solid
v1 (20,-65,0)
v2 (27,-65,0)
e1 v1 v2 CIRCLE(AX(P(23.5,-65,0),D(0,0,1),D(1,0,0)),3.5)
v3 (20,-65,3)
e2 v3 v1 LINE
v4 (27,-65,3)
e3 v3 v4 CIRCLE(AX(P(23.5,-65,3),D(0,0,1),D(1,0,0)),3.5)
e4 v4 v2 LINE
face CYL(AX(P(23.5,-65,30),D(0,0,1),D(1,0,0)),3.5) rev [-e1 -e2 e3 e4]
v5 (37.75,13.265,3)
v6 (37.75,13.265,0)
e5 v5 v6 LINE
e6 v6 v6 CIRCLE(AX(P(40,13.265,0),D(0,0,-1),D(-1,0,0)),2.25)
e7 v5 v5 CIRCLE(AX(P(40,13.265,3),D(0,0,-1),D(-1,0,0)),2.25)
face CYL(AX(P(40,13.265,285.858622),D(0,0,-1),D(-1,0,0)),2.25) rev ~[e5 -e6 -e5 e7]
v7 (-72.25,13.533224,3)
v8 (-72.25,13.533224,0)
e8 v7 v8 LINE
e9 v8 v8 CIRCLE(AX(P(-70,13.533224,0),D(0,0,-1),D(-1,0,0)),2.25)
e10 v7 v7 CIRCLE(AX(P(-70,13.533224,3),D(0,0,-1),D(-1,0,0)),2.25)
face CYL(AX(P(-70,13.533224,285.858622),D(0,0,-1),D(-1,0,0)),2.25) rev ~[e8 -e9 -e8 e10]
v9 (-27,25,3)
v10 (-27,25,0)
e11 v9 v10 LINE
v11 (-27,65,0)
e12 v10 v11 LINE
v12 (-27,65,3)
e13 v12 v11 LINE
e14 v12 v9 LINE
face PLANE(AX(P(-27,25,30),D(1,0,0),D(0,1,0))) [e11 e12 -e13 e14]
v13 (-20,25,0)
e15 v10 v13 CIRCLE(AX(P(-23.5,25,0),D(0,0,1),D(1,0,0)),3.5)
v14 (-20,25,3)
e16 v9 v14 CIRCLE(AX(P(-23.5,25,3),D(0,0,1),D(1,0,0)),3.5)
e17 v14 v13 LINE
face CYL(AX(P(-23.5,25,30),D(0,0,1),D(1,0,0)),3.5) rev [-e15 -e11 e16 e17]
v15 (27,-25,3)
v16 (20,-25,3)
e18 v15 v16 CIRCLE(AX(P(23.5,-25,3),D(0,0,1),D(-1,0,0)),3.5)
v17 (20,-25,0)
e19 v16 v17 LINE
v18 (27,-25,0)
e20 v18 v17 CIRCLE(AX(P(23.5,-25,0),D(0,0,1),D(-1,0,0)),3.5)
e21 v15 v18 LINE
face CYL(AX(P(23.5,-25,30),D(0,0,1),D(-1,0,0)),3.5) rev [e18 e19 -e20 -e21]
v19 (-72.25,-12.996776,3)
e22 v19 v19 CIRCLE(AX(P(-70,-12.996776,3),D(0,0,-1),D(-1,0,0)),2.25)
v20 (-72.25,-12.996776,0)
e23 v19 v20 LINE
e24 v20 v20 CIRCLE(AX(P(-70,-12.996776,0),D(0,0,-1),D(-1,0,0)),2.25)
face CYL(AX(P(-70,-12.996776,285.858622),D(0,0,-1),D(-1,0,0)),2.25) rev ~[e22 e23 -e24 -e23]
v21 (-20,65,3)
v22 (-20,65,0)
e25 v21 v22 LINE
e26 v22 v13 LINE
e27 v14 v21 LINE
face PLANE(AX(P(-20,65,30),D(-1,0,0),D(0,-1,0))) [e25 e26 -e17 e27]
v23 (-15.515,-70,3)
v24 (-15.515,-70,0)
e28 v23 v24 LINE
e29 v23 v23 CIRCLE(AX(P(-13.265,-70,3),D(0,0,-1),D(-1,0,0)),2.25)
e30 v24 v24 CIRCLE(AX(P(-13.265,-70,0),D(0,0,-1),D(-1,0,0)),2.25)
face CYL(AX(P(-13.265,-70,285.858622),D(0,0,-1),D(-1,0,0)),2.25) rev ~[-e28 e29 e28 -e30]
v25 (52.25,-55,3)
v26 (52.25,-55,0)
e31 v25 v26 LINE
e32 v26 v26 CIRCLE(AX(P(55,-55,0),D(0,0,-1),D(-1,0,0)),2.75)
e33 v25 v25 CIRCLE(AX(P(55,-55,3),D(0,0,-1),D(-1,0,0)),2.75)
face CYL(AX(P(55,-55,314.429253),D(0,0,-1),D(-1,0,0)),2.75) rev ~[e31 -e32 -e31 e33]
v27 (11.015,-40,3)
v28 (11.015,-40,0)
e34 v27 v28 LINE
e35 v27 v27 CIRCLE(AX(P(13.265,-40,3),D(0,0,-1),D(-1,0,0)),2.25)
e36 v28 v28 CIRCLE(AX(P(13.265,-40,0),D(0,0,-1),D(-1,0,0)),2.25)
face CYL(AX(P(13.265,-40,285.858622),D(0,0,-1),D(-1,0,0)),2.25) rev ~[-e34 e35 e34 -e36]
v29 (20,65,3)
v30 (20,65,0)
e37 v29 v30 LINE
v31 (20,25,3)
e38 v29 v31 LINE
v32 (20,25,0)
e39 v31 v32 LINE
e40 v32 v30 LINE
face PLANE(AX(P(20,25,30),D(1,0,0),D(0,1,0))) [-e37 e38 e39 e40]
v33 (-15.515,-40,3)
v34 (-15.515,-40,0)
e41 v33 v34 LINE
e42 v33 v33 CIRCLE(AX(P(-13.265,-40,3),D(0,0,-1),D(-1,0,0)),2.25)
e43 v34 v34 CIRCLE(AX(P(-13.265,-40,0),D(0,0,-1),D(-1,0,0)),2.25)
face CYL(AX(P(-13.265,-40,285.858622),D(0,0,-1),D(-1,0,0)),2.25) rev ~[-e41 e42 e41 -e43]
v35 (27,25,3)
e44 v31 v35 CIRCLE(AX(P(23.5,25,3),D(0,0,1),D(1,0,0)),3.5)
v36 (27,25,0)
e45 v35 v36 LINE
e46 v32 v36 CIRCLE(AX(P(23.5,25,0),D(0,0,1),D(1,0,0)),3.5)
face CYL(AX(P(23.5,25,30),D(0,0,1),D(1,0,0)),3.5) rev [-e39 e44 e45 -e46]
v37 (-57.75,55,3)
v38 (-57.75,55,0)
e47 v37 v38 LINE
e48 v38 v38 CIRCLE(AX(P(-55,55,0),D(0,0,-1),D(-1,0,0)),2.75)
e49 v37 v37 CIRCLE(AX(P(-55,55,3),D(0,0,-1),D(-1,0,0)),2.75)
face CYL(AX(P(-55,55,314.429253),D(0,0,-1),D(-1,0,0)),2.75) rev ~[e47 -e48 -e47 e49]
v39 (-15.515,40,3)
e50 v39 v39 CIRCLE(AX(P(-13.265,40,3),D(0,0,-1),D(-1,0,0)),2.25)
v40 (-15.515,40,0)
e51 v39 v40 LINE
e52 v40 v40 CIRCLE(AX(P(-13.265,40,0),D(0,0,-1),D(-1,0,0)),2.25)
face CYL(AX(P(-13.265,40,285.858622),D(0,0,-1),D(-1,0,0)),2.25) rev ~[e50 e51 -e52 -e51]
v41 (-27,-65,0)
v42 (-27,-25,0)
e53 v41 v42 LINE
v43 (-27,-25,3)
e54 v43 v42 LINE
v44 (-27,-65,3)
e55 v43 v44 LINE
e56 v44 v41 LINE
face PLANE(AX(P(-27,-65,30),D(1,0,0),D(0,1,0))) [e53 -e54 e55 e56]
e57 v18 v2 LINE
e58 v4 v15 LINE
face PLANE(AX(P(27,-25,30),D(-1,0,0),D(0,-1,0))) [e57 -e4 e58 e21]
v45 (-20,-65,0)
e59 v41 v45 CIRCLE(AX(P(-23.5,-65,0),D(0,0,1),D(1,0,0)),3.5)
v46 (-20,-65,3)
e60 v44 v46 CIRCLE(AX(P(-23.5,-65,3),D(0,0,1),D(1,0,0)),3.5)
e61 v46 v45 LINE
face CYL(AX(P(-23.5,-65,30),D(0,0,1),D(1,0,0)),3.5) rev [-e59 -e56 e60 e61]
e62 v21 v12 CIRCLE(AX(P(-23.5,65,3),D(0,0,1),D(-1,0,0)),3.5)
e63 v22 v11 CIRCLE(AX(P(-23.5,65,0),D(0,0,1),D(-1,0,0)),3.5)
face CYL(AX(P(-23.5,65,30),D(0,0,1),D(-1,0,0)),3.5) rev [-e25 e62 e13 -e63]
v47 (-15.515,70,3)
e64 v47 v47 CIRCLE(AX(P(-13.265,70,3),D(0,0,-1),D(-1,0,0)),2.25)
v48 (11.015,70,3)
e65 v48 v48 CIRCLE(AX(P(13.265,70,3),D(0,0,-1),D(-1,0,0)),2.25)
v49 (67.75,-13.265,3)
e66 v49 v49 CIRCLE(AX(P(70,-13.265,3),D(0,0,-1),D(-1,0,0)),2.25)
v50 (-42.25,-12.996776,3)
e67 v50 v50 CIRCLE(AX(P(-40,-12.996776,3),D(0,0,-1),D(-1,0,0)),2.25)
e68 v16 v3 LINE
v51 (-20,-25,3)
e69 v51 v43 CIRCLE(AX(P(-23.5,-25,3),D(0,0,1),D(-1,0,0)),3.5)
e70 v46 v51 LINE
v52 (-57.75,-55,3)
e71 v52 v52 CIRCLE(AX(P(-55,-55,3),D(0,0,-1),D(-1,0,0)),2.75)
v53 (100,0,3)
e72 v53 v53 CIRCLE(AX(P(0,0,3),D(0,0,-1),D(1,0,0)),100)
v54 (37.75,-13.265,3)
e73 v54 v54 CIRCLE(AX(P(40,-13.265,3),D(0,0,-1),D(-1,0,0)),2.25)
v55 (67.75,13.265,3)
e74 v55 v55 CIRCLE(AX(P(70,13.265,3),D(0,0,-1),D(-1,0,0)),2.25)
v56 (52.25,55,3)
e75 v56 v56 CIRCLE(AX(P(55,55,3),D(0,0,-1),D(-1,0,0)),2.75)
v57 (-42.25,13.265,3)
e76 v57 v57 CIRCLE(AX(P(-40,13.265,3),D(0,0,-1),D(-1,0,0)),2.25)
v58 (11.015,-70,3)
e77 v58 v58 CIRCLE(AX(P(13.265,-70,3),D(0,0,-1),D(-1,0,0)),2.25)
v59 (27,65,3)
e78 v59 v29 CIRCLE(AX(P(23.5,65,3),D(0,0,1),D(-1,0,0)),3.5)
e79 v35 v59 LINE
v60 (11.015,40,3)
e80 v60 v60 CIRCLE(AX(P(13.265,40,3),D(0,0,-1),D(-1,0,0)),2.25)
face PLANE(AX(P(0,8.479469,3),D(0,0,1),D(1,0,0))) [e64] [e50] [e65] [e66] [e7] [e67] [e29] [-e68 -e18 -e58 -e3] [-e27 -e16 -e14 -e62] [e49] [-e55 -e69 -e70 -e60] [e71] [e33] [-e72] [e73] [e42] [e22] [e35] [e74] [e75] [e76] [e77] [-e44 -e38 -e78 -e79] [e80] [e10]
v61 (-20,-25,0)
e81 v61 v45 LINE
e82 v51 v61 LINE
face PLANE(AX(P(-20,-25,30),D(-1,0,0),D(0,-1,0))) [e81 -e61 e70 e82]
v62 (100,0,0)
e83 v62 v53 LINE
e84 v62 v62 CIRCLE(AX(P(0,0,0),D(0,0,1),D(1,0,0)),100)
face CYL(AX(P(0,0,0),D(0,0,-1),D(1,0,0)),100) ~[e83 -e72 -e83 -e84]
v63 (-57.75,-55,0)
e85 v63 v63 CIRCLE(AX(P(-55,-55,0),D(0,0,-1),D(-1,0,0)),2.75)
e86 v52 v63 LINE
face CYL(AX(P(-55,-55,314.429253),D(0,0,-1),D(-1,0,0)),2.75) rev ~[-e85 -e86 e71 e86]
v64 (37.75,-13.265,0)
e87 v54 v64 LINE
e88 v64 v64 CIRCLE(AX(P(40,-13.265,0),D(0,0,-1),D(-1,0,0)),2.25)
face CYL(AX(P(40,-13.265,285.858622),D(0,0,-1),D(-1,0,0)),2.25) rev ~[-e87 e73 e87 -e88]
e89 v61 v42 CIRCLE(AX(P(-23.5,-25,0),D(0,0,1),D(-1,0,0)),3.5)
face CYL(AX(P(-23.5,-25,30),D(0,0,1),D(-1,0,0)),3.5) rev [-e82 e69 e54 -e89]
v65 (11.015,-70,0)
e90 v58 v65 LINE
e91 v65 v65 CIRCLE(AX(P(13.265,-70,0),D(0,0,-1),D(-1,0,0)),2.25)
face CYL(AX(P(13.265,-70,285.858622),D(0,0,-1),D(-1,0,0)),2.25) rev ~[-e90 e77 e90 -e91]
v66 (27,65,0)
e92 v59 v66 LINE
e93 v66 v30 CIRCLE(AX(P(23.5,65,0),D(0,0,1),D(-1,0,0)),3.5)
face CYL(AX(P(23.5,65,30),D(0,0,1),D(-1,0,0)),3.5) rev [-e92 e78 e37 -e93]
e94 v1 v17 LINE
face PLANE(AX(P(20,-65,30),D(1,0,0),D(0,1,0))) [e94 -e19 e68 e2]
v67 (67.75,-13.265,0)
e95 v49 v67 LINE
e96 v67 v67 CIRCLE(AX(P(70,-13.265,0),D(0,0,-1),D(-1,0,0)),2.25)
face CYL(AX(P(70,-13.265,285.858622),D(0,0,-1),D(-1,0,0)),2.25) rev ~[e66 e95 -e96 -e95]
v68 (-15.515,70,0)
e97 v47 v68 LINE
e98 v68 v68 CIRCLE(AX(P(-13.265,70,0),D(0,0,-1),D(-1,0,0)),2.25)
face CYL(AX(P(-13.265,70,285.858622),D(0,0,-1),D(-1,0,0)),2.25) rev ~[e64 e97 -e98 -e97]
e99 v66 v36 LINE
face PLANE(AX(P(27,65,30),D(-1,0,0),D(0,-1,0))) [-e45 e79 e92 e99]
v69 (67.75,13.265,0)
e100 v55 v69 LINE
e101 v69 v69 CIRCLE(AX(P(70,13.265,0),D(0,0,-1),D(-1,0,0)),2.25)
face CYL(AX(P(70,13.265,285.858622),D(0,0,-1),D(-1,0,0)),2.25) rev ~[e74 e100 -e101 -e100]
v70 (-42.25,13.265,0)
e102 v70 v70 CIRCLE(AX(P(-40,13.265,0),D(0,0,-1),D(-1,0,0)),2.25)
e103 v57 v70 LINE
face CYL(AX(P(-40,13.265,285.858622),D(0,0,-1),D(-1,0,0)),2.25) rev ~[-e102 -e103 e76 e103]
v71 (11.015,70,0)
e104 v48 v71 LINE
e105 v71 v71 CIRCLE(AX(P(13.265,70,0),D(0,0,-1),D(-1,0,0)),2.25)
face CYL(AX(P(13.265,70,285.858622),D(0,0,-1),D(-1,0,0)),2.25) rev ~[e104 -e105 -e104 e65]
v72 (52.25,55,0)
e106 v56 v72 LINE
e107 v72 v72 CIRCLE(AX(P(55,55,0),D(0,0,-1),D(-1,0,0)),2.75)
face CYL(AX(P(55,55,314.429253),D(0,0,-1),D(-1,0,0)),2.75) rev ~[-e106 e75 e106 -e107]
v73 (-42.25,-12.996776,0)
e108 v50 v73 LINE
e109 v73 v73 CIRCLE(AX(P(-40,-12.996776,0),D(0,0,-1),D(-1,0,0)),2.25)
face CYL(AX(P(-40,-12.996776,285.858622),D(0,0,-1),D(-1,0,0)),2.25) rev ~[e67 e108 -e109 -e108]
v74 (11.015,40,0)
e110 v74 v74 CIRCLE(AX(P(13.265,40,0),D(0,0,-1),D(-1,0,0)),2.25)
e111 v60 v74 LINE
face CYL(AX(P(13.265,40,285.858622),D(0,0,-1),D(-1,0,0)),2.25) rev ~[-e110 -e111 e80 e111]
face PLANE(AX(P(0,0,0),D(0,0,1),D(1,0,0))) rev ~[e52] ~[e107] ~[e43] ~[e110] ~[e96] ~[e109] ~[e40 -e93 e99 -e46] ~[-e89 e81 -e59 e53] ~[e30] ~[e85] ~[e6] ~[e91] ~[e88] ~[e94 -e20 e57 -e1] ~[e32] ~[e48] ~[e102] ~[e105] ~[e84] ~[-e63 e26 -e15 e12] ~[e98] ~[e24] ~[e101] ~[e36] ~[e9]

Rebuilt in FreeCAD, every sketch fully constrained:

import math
import FreeCAD as App
import Part
import Sketcher
from FreeCAD import Vector
Q = App.Units.Quantity

doc = App.newDocument("Part")
params = doc.addObject("Spreadsheet::Sheet", "Params")
for row, (alias, value) in enumerate([
    ("sketch1_diameter", "200 mm"),
    ("pad1_length", "30 mm"),
    ("sketch2_radius", "3.5 mm"),
    ("sketch2_height", "40 mm"),
    ("sketch3_diameter", "5.5 mm"),
    ("hole_diameter", "5.5 mm"),
    ("pocket2_length", "27 mm"),
    ("sketch5_diameter", "4.5 mm"),
    ("hole2_diameter", "4.5 mm"),
    ("sketch6_diameter", "4.5 mm"),
    ("hole3_diameter", "4.5 mm"),
], start=1):
    params.set(f"A{row}", alias)
    params.set(f"B{row}", "=" + value)
    params.setAlias(f"B{row}", alias)

body = doc.addObject("PartDesign::Body", "Body")

# Sketch on XY plane
sketch1 = body.newObject("Sketcher::SketchObject", "Sketch")
sketch1.AttachmentSupport = (doc.getObject("XY_Plane"), [""])
sketch1.MapMode = "FlatFace"
sketch1.addGeometry(Part.Circle(Vector(0, 0, 0), Vector(0, 0, 1), 100), False)
sketch1.addConstraint([
    Sketcher.Constraint("Coincident", 0, 3, -1, 1),
    Sketcher.Constraint("Diameter", 0, Q("200 mm")),
])
sketch1.setExpression("Constraints[1]", "Params.sketch1_diameter")
pad1 = body.newObject("PartDesign::Pad", "Pad")
pad1.Profile = sketch1
pad1.setExpression("Length", "Params.pad1_length")

# Sketch on XY plane
sketch2 = body.newObject("Sketcher::SketchObject", "Sketch001")
sketch2.AttachmentSupport = (doc.getObject("XY_Plane"), [""])
sketch2.MapMode = "FlatFace"
sketch2.AttachmentOffset = App.Placement(Vector(0, 0, 30), App.Rotation())
sketch2.addGeometry([
    Part.LineSegment(Vector(27, 25, 0), Vector(27, 65, 0)),  # 0
    Part.ArcOfCircle(Part.Circle(Vector(23.5, 65, 0), Vector(0, 0, 1), 3.5), math.radians(0), math.radians(180)),  # 1
    Part.LineSegment(Vector(20, 65, 0), Vector(20, 25, 0)),  # 2
    Part.ArcOfCircle(Part.Circle(Vector(23.5, 25, 0), Vector(0, 0, 1), 3.5), math.radians(180), math.radians(360)),  # 3
    Part.LineSegment(Vector(-20, 25, 0), Vector(-20, 65, 0)),  # 4
    Part.ArcOfCircle(Part.Circle(Vector(-23.5, 65, 0), Vector(0, 0, 1), 3.5), math.radians(0), math.radians(180)),  # 5
    Part.LineSegment(Vector(-27, 65, 0), Vector(-27, 25, 0)),  # 6
    Part.ArcOfCircle(Part.Circle(Vector(-23.5, 25, 0), Vector(0, 0, 1), 3.5), math.radians(180), math.radians(360)),  # 7
    Part.LineSegment(Vector(-20, -65, 0), Vector(-20, -25, 0)),  # 8
    Part.ArcOfCircle(Part.Circle(Vector(-23.5, -25, 0), Vector(0, 0, 1), 3.5), math.radians(0), math.radians(180)),  # 9
    Part.LineSegment(Vector(-27, -25, 0), Vector(-27, -65, 0)),  # 10
    Part.ArcOfCircle(Part.Circle(Vector(-23.5, -65, 0), Vector(0, 0, 1), 3.5), math.radians(180), math.radians(360)),  # 11
    Part.LineSegment(Vector(20, -25, 0), Vector(20, -65, 0)),  # 12
    Part.ArcOfCircle(Part.Circle(Vector(23.5, -65, 0), Vector(0, 0, 1), 3.5), math.radians(180), math.radians(360)),  # 13
    Part.LineSegment(Vector(27, -65, 0), Vector(27, -25, 0)),  # 14
    Part.ArcOfCircle(Part.Circle(Vector(23.5, -25, 0), Vector(0, 0, 1), 3.5), math.radians(0), math.radians(180)),  # 15
], False)
sketch2.addConstraint([
    Sketcher.Constraint("Tangent", 0, 2, 1, 1),
    Sketcher.Constraint("Tangent", 1, 2, 2, 1),
    Sketcher.Constraint("Tangent", 2, 2, 3, 1),
    Sketcher.Constraint("Tangent", 3, 2, 0, 1),
    Sketcher.Constraint("Tangent", 4, 2, 5, 1),
    Sketcher.Constraint("Tangent", 5, 2, 6, 1),
    Sketcher.Constraint("Tangent", 6, 2, 7, 1),
    Sketcher.Constraint("Tangent", 7, 2, 4, 1),
    Sketcher.Constraint("Tangent", 8, 2, 9, 1),
    Sketcher.Constraint("Tangent", 9, 2, 10, 1),
    Sketcher.Constraint("Tangent", 10, 2, 11, 1),
    Sketcher.Constraint("Tangent", 11, 2, 8, 1),
    Sketcher.Constraint("Tangent", 12, 2, 13, 1),
    Sketcher.Constraint("Tangent", 13, 2, 14, 1),
    Sketcher.Constraint("Tangent", 14, 2, 15, 1),
    Sketcher.Constraint("Tangent", 15, 2, 12, 1),
    Sketcher.Constraint("Vertical", 0),
    Sketcher.Constraint("Vertical", 2),
    Sketcher.Constraint("Vertical", 4),
    Sketcher.Constraint("Vertical", 6),
    Sketcher.Constraint("Vertical", 8),
    Sketcher.Constraint("Vertical", 10),
    Sketcher.Constraint("Vertical", 12),
    Sketcher.Constraint("Vertical", 14),
    Sketcher.Constraint("Equal", 3, 5),
    Sketcher.Constraint("Equal", 7, 9),
    Sketcher.Constraint("Equal", 11, 13),
    Sketcher.Constraint("Symmetric", 3, 3, 9, 3, -1, 1),
    Sketcher.Constraint("Symmetric", 5, 3, 13, 3, -1, 1),
    Sketcher.Constraint("Symmetric", 1, 3, 5, 3, -2),
    Sketcher.Constraint("Horizontal", 3, 3, 7, 3),
    Sketcher.Constraint("Horizontal", 11, 3, 13, 3),
    Sketcher.Constraint("Horizontal", 9, 3, 15, 3),
    Sketcher.Constraint("Radius", 1, Q("3.5 mm")),
    Sketcher.Constraint("DistanceY", 0, 1, 0, 2, Q("40 mm")),
    Sketcher.Constraint("DistanceY", -1, 1, 1, 3, Q("65 mm")),
    Sketcher.Constraint("DistanceX", -1, 1, 0, 2, Q("27 mm")),
])
sketch2.setExpression("Constraints[33]", "Params.sketch2_radius")
sketch2.setExpression("Constraints[34]", "Params.sketch2_height")
pocket1 = body.newObject("PartDesign::Pocket", "Pocket")
pocket1.Profile = sketch2
pocket1.Type = "ThroughAll"

# Sketch on XY plane
sketch3 = body.newObject("Sketcher::SketchObject", "Sketch002")
sketch3.AttachmentSupport = (doc.getObject("XY_Plane"), [""])
sketch3.MapMode = "FlatFace"
sketch3.AttachmentOffset = App.Placement(Vector(0, 0, 30), App.Rotation())
sketch3.addGeometry([
    Part.Circle(Vector(-55, 55, 0), Vector(0, 0, 1), 2.8),
    Part.Circle(Vector(55, 55, 0), Vector(0, 0, 1), 2.8),
    Part.Circle(Vector(55, -55, 0), Vector(0, 0, 1), 2.8),
    Part.Circle(Vector(-55, -55, 0), Vector(0, 0, 1), 2.8),
], False)
sketch3.addConstraint([
    Sketcher.Constraint("Equal", 0, 1),
    Sketcher.Constraint("Equal", 1, 2),
    Sketcher.Constraint("Equal", 2, 3),
    Sketcher.Constraint("Symmetric", 0, 3, 2, 3, -1, 1),
    Sketcher.Constraint("Symmetric", 1, 3, 3, 3, -1, 1),
    Sketcher.Constraint("Symmetric", 0, 3, 1, 3, -2),
    Sketcher.Constraint("Diameter", 0, Q("5.5 mm")),
    Sketcher.Constraint("DistanceX", 0, 3, -1, 1, Q("55 mm")),
    Sketcher.Constraint("DistanceY", -1, 1, 0, 3, Q("55 mm")),
])
sketch3.setExpression("Constraints[6]", "Params.sketch3_diameter")
doc.recompute()
hole = body.newObject("PartDesign::Hole", "Hole")
hole.Profile = sketch3
hole.ThreadType = "None"
hole.setExpression("Diameter", "Params.hole_diameter")
hole.DepthType = "ThroughAll"

# Sketch on XY plane
sketch4 = body.newObject("Sketcher::SketchObject", "Sketch003")
sketch4.AttachmentSupport = (doc.getObject("XY_Plane"), [""])
sketch4.MapMode = "FlatFace"
sketch4.AttachmentOffset = App.Placement(Vector(0, 0, 30), App.Rotation())
sketch4.addGeometry(Part.Circle(Vector(0, 8, 0), Vector(0, 0, 1), 184), False)
sketch4.addConstraint([
    Sketcher.Constraint("PointOnObject", 0, 3, -2),
    Sketcher.Constraint("Diameter", 0, Q("367.075116 mm")),
    Sketcher.Constraint("DistanceY", -1, 1, 0, 3, Q("8.479469 mm")),
])
pocket2 = body.newObject("PartDesign::Pocket", "Pocket001")
pocket2.Profile = sketch4
pocket2.setExpression("Length", "Params.pocket2_length")

# Sketch on XY plane
sketch5 = body.newObject("Sketcher::SketchObject", "Sketch004")
sketch5.AttachmentSupport = (doc.getObject("XY_Plane"), [""])
sketch5.MapMode = "FlatFace"
sketch5.AttachmentOffset = App.Placement(Vector(0, 0, 3), App.Rotation())
sketch5.addGeometry([
    Part.Circle(Vector(-13.3, 40, 0), Vector(0, 0, 1), 2.2),
    Part.Circle(Vector(-13.3, 70, 0), Vector(0, 0, 1), 2.2),
    Part.Circle(Vector(13.3, 70, 0), Vector(0, 0, 1), 2.2),
    Part.Circle(Vector(13.3, 40, 0), Vector(0, 0, 1), 2.2),
], False)
sketch5.addConstraint([
    Sketcher.Constraint("Equal", 0, 1),
    Sketcher.Constraint("Equal", 1, 2),
    Sketcher.Constraint("Equal", 2, 3),
    Sketcher.Constraint("Symmetric", 1, 3, 2, 3, -2),
    Sketcher.Constraint("Symmetric", 0, 3, 3, 3, -2),
    Sketcher.Constraint("Vertical", 0, 3, 1, 3),
    Sketcher.Constraint("Diameter", 0, Q("4.5 mm")),
    Sketcher.Constraint("DistanceY", -1, 1, 0, 3, Q("40 mm")),
    Sketcher.Constraint("DistanceY", -1, 1, 1, 3, Q("70 mm")),
    Sketcher.Constraint("DistanceX", 1, 3, 2, 3, Q("26.53 mm")),
])
sketch5.setExpression("Constraints[6]", "Params.sketch5_diameter")
doc.recompute()
hole2 = body.newObject("PartDesign::Hole", "Hole001")
hole2.Profile = sketch5
hole2.ThreadType = "None"
hole2.setExpression("Diameter", "Params.hole2_diameter")
hole2.DepthType = "ThroughAll"

# Sketch on XY plane
sketch6 = body.newObject("Sketcher::SketchObject", "Sketch005")
sketch6.AttachmentSupport = (doc.getObject("XY_Plane"), [""])
sketch6.MapMode = "FlatFace"
sketch6.AttachmentOffset = App.Placement(Vector(0, 0, 3), App.Rotation())
sketch6.addGeometry([
    Part.Circle(Vector(40, 13.3, 0), Vector(0, 0, 1), 2.2),  # 0
    Part.Circle(Vector(70, 13.3, 0), Vector(0, 0, 1), 2.2),  # 1
    Part.Circle(Vector(70, -13.3, 0), Vector(0, 0, 1), 2.2),  # 2
    Part.Circle(Vector(40, -13.3, 0), Vector(0, 0, 1), 2.2),  # 3
    Part.Circle(Vector(-40, -13, 0), Vector(0, 0, 1), 2.2),  # 4
    Part.Circle(Vector(-40, 13.3, 0), Vector(0, 0, 1), 2.2),  # 5
    Part.Circle(Vector(-70, 13.5, 0), Vector(0, 0, 1), 2.2),  # 6
    Part.Circle(Vector(-70, -13, 0), Vector(0, 0, 1), 2.2),  # 7
    Part.Circle(Vector(-13.3, -40, 0), Vector(0, 0, 1), 2.2),  # 8
    Part.Circle(Vector(13.3, -40, 0), Vector(0, 0, 1), 2.2),  # 9
    Part.Circle(Vector(13.3, -70, 0), Vector(0, 0, 1), 2.2),  # 10
    Part.Circle(Vector(-13.3, -70, 0), Vector(0, 0, 1), 2.2),  # 11
], False)
sketch6.addConstraint([
    Sketcher.Constraint("Equal", 0, 1),
    Sketcher.Constraint("Equal", 1, 2),
    Sketcher.Constraint("Equal", 2, 3),
    Sketcher.Constraint("Equal", 3, 4),
    Sketcher.Constraint("Equal", 4, 5),
    Sketcher.Constraint("Equal", 5, 6),
    Sketcher.Constraint("Equal", 6, 7),
    Sketcher.Constraint("Equal", 7, 8),
    Sketcher.Constraint("Equal", 8, 9),
    Sketcher.Constraint("Equal", 9, 10),
    Sketcher.Constraint("Equal", 10, 11),
    Sketcher.Constraint("Symmetric", 3, 3, 5, 3, -1, 1),
    Sketcher.Constraint("Symmetric", 0, 3, 5, 3, -2),
    Sketcher.Constraint("Symmetric", 8, 3, 9, 3, -2),
    Sketcher.Constraint("Symmetric", 10, 3, 11, 3, -2),
    Sketcher.Constraint("Symmetric", 1, 3, 2, 3, -1),
    Sketcher.Constraint("Horizontal", 0, 3, 1, 3),
    Sketcher.Constraint("Horizontal", 4, 3, 7, 3),
    Sketcher.Constraint("Vertical", 4, 3, 5, 3),
    Sketcher.Constraint("Vertical", 6, 3, 7, 3),
    Sketcher.Constraint("Vertical", 9, 3, 10, 3),
    Sketcher.Constraint("Diameter", 0, Q("4.5 mm")),
    Sketcher.Constraint("DistanceX", -1, 1, 0, 3, Q("40 mm")),
    Sketcher.Constraint("DistanceX", -1, 1, 1, 3, Q("70 mm")),
    Sketcher.Constraint("DistanceX", 6, 3, -1, 1, Q("70 mm")),
    Sketcher.Constraint("DistanceY", 8, 3, -1, 1, Q("40 mm")),
    Sketcher.Constraint("DistanceY", 10, 3, -1, 1, Q("70 mm")),
    Sketcher.Constraint("DistanceY", 2, 3, 1, 3, Q("26.53 mm")),
    Sketcher.Constraint("DistanceY", 4, 3, 6, 3, Q("26.53 mm")),
    Sketcher.Constraint("DistanceX", 8, 3, 9, 3, Q("26.53 mm")),
    Sketcher.Constraint("DistanceY", 4, 3, -1, 1, Q("12.996776 mm")),
])
sketch6.setExpression("Constraints[21]", "Params.sketch6_diameter")
doc.recompute()
hole3 = body.newObject("PartDesign::Hole", "Hole002")
hole3.Profile = sketch6
hole3.ThreadType = "None"
hole3.setExpression("Diameter", "Params.hole3_diameter")
hole3.DepthType = "ThroughAll"

doc.recompute()
